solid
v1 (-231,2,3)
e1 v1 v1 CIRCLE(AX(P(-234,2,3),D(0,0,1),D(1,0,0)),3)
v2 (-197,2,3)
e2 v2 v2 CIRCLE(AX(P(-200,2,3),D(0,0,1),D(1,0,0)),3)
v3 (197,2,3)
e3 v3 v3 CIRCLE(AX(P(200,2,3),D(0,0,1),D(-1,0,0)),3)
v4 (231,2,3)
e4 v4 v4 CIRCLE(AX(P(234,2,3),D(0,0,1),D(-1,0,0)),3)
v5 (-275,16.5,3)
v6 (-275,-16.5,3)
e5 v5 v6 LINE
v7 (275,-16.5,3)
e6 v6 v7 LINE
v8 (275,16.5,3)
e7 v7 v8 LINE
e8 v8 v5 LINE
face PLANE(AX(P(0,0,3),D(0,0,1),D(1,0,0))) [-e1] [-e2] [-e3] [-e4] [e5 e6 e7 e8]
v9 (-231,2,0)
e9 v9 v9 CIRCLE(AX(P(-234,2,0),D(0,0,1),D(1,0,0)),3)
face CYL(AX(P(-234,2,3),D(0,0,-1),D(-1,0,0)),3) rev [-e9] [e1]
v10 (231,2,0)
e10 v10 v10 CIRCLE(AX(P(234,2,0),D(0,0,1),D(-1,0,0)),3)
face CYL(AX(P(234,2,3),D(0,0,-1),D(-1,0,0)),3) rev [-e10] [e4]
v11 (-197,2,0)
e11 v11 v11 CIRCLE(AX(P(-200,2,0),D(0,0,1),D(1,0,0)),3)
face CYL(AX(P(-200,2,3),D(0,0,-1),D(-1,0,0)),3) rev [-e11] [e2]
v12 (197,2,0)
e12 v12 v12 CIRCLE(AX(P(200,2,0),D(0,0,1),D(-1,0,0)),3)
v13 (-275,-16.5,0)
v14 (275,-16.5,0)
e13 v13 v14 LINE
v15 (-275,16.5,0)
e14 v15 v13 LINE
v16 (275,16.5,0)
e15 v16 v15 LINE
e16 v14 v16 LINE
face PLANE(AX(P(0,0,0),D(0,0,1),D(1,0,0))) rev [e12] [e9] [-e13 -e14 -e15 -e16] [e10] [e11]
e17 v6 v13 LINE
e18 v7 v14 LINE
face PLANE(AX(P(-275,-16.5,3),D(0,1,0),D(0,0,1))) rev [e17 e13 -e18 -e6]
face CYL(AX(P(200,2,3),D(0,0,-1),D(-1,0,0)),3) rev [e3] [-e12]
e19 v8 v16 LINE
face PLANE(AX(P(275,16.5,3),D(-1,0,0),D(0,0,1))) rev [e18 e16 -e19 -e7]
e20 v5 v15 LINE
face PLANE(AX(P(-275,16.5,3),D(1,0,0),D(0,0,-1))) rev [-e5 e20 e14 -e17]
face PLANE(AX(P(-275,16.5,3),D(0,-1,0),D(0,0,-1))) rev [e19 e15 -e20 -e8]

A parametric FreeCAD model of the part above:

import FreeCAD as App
import Part
import Sketcher
from FreeCAD import Vector


def add_polygon(sketch, points):
    """Adds a closed chain of lines whose ends are joined by coincident constraints."""
    first, n = sketch.GeometryCount, len(points)
    for a, b in zip(points, points[1:] + points[:1]):
        sketch.addGeometry(Part.LineSegment(App.Vector(*a, 0), App.Vector(*b, 0)), False)
    for i in range(n):
        sketch.addConstraint(Sketcher.Constraint("Coincident", first + i, 2, first + (i + 1) % n, 1))

doc = App.newDocument("Part")
body = doc.addObject("PartDesign::Body", "Body")

# Sketch on XY plane
sketch1 = body.newObject("Sketcher::SketchObject", "Sketch")
sketch1.AttachmentSupport = (doc.getObject("XY_Plane"), [""])
sketch1.MapMode = "FlatFace"
add_polygon(sketch1, [(-275, 16), (-275, -16), (275, -16), (275, 16)])  # lines 0-3
sketch1.addConstraint(Sketcher.Constraint("Vertical", 0))
sketch1.addConstraint(Sketcher.Constraint("Horizontal", 1))
sketch1.addConstraint(Sketcher.Constraint("Vertical", 2))
sketch1.addConstraint(Sketcher.Constraint("Horizontal", 3))
sketch1.addConstraint(Sketcher.Constraint("Symmetric", 0, 2, 2, 2, -1, 1))
sketch1.addConstraint(Sketcher.Constraint("DistanceX", 1, 1, 1, 2, 550.0))
sketch1.addConstraint(Sketcher.Constraint("DistanceY", 0, 2, 0, 1, 33.0))
pad1 = body.newObject("PartDesign::Pad", "Pad")
pad1.Profile = sketch1
pad1.Length = 3

# Sketch on XY plane
sketch2 = body.newObject("Sketcher::SketchObject", "Sketch001")
sketch2.AttachmentSupport = (doc.getObject("XY_Plane"), [""])
sketch2.MapMode = "FlatFace"
sketch2.addGeometry(Part.Circle(Vector(-234, 2, 0), Vector(0, 0, 1), 3), False)
sketch2.addGeometry(Part.Circle(Vector(-200, 2, 0), Vector(0, 0, 1), 3), False)
sketch2.addGeometry(Part.Circle(Vector(200, 2, 0), Vector(0, 0, 1), 3), False)
sketch2.addGeometry(Part.Circle(Vector(234, 2, 0), Vector(0, 0, 1), 3), False)
sketch2.addConstraint(Sketcher.Constraint("Equal", 0, 1))
sketch2.addConstraint(Sketcher.Constraint("Equal", 1, 2))
sketch2.addConstraint(Sketcher.Constraint("Equal", 2, 3))
sketch2.addConstraint(Sketcher.Constraint("Symmetric", 1, 3, 2, 3, -2))
sketch2.addConstraint(Sketcher.Constraint("Symmetric", 0, 3, 3, 3, -2))
sketch2.addConstraint(Sketcher.Constraint("Horizontal", 0, 3, 1, 3))
sketch2.addConstraint(Sketcher.Constraint("Diameter", 0, 6.0))
sketch2.addConstraint(Sketcher.Constraint("DistanceX", 0, 3, -1, 1, 234.0))
sketch2.addConstraint(Sketcher.Constraint("DistanceY", -1, 1, 0, 3, 2.0))
sketch2.addConstraint(Sketcher.Constraint("DistanceX", 1, 3, -1, 1, 200.0))
pocket1 = body.newObject("PartDesign::Pocket", "Pocket")
pocket1.Profile = sketch2
pocket1.Type = "ThroughAll"
pocket1.Reversed = True

doc.recompute()
